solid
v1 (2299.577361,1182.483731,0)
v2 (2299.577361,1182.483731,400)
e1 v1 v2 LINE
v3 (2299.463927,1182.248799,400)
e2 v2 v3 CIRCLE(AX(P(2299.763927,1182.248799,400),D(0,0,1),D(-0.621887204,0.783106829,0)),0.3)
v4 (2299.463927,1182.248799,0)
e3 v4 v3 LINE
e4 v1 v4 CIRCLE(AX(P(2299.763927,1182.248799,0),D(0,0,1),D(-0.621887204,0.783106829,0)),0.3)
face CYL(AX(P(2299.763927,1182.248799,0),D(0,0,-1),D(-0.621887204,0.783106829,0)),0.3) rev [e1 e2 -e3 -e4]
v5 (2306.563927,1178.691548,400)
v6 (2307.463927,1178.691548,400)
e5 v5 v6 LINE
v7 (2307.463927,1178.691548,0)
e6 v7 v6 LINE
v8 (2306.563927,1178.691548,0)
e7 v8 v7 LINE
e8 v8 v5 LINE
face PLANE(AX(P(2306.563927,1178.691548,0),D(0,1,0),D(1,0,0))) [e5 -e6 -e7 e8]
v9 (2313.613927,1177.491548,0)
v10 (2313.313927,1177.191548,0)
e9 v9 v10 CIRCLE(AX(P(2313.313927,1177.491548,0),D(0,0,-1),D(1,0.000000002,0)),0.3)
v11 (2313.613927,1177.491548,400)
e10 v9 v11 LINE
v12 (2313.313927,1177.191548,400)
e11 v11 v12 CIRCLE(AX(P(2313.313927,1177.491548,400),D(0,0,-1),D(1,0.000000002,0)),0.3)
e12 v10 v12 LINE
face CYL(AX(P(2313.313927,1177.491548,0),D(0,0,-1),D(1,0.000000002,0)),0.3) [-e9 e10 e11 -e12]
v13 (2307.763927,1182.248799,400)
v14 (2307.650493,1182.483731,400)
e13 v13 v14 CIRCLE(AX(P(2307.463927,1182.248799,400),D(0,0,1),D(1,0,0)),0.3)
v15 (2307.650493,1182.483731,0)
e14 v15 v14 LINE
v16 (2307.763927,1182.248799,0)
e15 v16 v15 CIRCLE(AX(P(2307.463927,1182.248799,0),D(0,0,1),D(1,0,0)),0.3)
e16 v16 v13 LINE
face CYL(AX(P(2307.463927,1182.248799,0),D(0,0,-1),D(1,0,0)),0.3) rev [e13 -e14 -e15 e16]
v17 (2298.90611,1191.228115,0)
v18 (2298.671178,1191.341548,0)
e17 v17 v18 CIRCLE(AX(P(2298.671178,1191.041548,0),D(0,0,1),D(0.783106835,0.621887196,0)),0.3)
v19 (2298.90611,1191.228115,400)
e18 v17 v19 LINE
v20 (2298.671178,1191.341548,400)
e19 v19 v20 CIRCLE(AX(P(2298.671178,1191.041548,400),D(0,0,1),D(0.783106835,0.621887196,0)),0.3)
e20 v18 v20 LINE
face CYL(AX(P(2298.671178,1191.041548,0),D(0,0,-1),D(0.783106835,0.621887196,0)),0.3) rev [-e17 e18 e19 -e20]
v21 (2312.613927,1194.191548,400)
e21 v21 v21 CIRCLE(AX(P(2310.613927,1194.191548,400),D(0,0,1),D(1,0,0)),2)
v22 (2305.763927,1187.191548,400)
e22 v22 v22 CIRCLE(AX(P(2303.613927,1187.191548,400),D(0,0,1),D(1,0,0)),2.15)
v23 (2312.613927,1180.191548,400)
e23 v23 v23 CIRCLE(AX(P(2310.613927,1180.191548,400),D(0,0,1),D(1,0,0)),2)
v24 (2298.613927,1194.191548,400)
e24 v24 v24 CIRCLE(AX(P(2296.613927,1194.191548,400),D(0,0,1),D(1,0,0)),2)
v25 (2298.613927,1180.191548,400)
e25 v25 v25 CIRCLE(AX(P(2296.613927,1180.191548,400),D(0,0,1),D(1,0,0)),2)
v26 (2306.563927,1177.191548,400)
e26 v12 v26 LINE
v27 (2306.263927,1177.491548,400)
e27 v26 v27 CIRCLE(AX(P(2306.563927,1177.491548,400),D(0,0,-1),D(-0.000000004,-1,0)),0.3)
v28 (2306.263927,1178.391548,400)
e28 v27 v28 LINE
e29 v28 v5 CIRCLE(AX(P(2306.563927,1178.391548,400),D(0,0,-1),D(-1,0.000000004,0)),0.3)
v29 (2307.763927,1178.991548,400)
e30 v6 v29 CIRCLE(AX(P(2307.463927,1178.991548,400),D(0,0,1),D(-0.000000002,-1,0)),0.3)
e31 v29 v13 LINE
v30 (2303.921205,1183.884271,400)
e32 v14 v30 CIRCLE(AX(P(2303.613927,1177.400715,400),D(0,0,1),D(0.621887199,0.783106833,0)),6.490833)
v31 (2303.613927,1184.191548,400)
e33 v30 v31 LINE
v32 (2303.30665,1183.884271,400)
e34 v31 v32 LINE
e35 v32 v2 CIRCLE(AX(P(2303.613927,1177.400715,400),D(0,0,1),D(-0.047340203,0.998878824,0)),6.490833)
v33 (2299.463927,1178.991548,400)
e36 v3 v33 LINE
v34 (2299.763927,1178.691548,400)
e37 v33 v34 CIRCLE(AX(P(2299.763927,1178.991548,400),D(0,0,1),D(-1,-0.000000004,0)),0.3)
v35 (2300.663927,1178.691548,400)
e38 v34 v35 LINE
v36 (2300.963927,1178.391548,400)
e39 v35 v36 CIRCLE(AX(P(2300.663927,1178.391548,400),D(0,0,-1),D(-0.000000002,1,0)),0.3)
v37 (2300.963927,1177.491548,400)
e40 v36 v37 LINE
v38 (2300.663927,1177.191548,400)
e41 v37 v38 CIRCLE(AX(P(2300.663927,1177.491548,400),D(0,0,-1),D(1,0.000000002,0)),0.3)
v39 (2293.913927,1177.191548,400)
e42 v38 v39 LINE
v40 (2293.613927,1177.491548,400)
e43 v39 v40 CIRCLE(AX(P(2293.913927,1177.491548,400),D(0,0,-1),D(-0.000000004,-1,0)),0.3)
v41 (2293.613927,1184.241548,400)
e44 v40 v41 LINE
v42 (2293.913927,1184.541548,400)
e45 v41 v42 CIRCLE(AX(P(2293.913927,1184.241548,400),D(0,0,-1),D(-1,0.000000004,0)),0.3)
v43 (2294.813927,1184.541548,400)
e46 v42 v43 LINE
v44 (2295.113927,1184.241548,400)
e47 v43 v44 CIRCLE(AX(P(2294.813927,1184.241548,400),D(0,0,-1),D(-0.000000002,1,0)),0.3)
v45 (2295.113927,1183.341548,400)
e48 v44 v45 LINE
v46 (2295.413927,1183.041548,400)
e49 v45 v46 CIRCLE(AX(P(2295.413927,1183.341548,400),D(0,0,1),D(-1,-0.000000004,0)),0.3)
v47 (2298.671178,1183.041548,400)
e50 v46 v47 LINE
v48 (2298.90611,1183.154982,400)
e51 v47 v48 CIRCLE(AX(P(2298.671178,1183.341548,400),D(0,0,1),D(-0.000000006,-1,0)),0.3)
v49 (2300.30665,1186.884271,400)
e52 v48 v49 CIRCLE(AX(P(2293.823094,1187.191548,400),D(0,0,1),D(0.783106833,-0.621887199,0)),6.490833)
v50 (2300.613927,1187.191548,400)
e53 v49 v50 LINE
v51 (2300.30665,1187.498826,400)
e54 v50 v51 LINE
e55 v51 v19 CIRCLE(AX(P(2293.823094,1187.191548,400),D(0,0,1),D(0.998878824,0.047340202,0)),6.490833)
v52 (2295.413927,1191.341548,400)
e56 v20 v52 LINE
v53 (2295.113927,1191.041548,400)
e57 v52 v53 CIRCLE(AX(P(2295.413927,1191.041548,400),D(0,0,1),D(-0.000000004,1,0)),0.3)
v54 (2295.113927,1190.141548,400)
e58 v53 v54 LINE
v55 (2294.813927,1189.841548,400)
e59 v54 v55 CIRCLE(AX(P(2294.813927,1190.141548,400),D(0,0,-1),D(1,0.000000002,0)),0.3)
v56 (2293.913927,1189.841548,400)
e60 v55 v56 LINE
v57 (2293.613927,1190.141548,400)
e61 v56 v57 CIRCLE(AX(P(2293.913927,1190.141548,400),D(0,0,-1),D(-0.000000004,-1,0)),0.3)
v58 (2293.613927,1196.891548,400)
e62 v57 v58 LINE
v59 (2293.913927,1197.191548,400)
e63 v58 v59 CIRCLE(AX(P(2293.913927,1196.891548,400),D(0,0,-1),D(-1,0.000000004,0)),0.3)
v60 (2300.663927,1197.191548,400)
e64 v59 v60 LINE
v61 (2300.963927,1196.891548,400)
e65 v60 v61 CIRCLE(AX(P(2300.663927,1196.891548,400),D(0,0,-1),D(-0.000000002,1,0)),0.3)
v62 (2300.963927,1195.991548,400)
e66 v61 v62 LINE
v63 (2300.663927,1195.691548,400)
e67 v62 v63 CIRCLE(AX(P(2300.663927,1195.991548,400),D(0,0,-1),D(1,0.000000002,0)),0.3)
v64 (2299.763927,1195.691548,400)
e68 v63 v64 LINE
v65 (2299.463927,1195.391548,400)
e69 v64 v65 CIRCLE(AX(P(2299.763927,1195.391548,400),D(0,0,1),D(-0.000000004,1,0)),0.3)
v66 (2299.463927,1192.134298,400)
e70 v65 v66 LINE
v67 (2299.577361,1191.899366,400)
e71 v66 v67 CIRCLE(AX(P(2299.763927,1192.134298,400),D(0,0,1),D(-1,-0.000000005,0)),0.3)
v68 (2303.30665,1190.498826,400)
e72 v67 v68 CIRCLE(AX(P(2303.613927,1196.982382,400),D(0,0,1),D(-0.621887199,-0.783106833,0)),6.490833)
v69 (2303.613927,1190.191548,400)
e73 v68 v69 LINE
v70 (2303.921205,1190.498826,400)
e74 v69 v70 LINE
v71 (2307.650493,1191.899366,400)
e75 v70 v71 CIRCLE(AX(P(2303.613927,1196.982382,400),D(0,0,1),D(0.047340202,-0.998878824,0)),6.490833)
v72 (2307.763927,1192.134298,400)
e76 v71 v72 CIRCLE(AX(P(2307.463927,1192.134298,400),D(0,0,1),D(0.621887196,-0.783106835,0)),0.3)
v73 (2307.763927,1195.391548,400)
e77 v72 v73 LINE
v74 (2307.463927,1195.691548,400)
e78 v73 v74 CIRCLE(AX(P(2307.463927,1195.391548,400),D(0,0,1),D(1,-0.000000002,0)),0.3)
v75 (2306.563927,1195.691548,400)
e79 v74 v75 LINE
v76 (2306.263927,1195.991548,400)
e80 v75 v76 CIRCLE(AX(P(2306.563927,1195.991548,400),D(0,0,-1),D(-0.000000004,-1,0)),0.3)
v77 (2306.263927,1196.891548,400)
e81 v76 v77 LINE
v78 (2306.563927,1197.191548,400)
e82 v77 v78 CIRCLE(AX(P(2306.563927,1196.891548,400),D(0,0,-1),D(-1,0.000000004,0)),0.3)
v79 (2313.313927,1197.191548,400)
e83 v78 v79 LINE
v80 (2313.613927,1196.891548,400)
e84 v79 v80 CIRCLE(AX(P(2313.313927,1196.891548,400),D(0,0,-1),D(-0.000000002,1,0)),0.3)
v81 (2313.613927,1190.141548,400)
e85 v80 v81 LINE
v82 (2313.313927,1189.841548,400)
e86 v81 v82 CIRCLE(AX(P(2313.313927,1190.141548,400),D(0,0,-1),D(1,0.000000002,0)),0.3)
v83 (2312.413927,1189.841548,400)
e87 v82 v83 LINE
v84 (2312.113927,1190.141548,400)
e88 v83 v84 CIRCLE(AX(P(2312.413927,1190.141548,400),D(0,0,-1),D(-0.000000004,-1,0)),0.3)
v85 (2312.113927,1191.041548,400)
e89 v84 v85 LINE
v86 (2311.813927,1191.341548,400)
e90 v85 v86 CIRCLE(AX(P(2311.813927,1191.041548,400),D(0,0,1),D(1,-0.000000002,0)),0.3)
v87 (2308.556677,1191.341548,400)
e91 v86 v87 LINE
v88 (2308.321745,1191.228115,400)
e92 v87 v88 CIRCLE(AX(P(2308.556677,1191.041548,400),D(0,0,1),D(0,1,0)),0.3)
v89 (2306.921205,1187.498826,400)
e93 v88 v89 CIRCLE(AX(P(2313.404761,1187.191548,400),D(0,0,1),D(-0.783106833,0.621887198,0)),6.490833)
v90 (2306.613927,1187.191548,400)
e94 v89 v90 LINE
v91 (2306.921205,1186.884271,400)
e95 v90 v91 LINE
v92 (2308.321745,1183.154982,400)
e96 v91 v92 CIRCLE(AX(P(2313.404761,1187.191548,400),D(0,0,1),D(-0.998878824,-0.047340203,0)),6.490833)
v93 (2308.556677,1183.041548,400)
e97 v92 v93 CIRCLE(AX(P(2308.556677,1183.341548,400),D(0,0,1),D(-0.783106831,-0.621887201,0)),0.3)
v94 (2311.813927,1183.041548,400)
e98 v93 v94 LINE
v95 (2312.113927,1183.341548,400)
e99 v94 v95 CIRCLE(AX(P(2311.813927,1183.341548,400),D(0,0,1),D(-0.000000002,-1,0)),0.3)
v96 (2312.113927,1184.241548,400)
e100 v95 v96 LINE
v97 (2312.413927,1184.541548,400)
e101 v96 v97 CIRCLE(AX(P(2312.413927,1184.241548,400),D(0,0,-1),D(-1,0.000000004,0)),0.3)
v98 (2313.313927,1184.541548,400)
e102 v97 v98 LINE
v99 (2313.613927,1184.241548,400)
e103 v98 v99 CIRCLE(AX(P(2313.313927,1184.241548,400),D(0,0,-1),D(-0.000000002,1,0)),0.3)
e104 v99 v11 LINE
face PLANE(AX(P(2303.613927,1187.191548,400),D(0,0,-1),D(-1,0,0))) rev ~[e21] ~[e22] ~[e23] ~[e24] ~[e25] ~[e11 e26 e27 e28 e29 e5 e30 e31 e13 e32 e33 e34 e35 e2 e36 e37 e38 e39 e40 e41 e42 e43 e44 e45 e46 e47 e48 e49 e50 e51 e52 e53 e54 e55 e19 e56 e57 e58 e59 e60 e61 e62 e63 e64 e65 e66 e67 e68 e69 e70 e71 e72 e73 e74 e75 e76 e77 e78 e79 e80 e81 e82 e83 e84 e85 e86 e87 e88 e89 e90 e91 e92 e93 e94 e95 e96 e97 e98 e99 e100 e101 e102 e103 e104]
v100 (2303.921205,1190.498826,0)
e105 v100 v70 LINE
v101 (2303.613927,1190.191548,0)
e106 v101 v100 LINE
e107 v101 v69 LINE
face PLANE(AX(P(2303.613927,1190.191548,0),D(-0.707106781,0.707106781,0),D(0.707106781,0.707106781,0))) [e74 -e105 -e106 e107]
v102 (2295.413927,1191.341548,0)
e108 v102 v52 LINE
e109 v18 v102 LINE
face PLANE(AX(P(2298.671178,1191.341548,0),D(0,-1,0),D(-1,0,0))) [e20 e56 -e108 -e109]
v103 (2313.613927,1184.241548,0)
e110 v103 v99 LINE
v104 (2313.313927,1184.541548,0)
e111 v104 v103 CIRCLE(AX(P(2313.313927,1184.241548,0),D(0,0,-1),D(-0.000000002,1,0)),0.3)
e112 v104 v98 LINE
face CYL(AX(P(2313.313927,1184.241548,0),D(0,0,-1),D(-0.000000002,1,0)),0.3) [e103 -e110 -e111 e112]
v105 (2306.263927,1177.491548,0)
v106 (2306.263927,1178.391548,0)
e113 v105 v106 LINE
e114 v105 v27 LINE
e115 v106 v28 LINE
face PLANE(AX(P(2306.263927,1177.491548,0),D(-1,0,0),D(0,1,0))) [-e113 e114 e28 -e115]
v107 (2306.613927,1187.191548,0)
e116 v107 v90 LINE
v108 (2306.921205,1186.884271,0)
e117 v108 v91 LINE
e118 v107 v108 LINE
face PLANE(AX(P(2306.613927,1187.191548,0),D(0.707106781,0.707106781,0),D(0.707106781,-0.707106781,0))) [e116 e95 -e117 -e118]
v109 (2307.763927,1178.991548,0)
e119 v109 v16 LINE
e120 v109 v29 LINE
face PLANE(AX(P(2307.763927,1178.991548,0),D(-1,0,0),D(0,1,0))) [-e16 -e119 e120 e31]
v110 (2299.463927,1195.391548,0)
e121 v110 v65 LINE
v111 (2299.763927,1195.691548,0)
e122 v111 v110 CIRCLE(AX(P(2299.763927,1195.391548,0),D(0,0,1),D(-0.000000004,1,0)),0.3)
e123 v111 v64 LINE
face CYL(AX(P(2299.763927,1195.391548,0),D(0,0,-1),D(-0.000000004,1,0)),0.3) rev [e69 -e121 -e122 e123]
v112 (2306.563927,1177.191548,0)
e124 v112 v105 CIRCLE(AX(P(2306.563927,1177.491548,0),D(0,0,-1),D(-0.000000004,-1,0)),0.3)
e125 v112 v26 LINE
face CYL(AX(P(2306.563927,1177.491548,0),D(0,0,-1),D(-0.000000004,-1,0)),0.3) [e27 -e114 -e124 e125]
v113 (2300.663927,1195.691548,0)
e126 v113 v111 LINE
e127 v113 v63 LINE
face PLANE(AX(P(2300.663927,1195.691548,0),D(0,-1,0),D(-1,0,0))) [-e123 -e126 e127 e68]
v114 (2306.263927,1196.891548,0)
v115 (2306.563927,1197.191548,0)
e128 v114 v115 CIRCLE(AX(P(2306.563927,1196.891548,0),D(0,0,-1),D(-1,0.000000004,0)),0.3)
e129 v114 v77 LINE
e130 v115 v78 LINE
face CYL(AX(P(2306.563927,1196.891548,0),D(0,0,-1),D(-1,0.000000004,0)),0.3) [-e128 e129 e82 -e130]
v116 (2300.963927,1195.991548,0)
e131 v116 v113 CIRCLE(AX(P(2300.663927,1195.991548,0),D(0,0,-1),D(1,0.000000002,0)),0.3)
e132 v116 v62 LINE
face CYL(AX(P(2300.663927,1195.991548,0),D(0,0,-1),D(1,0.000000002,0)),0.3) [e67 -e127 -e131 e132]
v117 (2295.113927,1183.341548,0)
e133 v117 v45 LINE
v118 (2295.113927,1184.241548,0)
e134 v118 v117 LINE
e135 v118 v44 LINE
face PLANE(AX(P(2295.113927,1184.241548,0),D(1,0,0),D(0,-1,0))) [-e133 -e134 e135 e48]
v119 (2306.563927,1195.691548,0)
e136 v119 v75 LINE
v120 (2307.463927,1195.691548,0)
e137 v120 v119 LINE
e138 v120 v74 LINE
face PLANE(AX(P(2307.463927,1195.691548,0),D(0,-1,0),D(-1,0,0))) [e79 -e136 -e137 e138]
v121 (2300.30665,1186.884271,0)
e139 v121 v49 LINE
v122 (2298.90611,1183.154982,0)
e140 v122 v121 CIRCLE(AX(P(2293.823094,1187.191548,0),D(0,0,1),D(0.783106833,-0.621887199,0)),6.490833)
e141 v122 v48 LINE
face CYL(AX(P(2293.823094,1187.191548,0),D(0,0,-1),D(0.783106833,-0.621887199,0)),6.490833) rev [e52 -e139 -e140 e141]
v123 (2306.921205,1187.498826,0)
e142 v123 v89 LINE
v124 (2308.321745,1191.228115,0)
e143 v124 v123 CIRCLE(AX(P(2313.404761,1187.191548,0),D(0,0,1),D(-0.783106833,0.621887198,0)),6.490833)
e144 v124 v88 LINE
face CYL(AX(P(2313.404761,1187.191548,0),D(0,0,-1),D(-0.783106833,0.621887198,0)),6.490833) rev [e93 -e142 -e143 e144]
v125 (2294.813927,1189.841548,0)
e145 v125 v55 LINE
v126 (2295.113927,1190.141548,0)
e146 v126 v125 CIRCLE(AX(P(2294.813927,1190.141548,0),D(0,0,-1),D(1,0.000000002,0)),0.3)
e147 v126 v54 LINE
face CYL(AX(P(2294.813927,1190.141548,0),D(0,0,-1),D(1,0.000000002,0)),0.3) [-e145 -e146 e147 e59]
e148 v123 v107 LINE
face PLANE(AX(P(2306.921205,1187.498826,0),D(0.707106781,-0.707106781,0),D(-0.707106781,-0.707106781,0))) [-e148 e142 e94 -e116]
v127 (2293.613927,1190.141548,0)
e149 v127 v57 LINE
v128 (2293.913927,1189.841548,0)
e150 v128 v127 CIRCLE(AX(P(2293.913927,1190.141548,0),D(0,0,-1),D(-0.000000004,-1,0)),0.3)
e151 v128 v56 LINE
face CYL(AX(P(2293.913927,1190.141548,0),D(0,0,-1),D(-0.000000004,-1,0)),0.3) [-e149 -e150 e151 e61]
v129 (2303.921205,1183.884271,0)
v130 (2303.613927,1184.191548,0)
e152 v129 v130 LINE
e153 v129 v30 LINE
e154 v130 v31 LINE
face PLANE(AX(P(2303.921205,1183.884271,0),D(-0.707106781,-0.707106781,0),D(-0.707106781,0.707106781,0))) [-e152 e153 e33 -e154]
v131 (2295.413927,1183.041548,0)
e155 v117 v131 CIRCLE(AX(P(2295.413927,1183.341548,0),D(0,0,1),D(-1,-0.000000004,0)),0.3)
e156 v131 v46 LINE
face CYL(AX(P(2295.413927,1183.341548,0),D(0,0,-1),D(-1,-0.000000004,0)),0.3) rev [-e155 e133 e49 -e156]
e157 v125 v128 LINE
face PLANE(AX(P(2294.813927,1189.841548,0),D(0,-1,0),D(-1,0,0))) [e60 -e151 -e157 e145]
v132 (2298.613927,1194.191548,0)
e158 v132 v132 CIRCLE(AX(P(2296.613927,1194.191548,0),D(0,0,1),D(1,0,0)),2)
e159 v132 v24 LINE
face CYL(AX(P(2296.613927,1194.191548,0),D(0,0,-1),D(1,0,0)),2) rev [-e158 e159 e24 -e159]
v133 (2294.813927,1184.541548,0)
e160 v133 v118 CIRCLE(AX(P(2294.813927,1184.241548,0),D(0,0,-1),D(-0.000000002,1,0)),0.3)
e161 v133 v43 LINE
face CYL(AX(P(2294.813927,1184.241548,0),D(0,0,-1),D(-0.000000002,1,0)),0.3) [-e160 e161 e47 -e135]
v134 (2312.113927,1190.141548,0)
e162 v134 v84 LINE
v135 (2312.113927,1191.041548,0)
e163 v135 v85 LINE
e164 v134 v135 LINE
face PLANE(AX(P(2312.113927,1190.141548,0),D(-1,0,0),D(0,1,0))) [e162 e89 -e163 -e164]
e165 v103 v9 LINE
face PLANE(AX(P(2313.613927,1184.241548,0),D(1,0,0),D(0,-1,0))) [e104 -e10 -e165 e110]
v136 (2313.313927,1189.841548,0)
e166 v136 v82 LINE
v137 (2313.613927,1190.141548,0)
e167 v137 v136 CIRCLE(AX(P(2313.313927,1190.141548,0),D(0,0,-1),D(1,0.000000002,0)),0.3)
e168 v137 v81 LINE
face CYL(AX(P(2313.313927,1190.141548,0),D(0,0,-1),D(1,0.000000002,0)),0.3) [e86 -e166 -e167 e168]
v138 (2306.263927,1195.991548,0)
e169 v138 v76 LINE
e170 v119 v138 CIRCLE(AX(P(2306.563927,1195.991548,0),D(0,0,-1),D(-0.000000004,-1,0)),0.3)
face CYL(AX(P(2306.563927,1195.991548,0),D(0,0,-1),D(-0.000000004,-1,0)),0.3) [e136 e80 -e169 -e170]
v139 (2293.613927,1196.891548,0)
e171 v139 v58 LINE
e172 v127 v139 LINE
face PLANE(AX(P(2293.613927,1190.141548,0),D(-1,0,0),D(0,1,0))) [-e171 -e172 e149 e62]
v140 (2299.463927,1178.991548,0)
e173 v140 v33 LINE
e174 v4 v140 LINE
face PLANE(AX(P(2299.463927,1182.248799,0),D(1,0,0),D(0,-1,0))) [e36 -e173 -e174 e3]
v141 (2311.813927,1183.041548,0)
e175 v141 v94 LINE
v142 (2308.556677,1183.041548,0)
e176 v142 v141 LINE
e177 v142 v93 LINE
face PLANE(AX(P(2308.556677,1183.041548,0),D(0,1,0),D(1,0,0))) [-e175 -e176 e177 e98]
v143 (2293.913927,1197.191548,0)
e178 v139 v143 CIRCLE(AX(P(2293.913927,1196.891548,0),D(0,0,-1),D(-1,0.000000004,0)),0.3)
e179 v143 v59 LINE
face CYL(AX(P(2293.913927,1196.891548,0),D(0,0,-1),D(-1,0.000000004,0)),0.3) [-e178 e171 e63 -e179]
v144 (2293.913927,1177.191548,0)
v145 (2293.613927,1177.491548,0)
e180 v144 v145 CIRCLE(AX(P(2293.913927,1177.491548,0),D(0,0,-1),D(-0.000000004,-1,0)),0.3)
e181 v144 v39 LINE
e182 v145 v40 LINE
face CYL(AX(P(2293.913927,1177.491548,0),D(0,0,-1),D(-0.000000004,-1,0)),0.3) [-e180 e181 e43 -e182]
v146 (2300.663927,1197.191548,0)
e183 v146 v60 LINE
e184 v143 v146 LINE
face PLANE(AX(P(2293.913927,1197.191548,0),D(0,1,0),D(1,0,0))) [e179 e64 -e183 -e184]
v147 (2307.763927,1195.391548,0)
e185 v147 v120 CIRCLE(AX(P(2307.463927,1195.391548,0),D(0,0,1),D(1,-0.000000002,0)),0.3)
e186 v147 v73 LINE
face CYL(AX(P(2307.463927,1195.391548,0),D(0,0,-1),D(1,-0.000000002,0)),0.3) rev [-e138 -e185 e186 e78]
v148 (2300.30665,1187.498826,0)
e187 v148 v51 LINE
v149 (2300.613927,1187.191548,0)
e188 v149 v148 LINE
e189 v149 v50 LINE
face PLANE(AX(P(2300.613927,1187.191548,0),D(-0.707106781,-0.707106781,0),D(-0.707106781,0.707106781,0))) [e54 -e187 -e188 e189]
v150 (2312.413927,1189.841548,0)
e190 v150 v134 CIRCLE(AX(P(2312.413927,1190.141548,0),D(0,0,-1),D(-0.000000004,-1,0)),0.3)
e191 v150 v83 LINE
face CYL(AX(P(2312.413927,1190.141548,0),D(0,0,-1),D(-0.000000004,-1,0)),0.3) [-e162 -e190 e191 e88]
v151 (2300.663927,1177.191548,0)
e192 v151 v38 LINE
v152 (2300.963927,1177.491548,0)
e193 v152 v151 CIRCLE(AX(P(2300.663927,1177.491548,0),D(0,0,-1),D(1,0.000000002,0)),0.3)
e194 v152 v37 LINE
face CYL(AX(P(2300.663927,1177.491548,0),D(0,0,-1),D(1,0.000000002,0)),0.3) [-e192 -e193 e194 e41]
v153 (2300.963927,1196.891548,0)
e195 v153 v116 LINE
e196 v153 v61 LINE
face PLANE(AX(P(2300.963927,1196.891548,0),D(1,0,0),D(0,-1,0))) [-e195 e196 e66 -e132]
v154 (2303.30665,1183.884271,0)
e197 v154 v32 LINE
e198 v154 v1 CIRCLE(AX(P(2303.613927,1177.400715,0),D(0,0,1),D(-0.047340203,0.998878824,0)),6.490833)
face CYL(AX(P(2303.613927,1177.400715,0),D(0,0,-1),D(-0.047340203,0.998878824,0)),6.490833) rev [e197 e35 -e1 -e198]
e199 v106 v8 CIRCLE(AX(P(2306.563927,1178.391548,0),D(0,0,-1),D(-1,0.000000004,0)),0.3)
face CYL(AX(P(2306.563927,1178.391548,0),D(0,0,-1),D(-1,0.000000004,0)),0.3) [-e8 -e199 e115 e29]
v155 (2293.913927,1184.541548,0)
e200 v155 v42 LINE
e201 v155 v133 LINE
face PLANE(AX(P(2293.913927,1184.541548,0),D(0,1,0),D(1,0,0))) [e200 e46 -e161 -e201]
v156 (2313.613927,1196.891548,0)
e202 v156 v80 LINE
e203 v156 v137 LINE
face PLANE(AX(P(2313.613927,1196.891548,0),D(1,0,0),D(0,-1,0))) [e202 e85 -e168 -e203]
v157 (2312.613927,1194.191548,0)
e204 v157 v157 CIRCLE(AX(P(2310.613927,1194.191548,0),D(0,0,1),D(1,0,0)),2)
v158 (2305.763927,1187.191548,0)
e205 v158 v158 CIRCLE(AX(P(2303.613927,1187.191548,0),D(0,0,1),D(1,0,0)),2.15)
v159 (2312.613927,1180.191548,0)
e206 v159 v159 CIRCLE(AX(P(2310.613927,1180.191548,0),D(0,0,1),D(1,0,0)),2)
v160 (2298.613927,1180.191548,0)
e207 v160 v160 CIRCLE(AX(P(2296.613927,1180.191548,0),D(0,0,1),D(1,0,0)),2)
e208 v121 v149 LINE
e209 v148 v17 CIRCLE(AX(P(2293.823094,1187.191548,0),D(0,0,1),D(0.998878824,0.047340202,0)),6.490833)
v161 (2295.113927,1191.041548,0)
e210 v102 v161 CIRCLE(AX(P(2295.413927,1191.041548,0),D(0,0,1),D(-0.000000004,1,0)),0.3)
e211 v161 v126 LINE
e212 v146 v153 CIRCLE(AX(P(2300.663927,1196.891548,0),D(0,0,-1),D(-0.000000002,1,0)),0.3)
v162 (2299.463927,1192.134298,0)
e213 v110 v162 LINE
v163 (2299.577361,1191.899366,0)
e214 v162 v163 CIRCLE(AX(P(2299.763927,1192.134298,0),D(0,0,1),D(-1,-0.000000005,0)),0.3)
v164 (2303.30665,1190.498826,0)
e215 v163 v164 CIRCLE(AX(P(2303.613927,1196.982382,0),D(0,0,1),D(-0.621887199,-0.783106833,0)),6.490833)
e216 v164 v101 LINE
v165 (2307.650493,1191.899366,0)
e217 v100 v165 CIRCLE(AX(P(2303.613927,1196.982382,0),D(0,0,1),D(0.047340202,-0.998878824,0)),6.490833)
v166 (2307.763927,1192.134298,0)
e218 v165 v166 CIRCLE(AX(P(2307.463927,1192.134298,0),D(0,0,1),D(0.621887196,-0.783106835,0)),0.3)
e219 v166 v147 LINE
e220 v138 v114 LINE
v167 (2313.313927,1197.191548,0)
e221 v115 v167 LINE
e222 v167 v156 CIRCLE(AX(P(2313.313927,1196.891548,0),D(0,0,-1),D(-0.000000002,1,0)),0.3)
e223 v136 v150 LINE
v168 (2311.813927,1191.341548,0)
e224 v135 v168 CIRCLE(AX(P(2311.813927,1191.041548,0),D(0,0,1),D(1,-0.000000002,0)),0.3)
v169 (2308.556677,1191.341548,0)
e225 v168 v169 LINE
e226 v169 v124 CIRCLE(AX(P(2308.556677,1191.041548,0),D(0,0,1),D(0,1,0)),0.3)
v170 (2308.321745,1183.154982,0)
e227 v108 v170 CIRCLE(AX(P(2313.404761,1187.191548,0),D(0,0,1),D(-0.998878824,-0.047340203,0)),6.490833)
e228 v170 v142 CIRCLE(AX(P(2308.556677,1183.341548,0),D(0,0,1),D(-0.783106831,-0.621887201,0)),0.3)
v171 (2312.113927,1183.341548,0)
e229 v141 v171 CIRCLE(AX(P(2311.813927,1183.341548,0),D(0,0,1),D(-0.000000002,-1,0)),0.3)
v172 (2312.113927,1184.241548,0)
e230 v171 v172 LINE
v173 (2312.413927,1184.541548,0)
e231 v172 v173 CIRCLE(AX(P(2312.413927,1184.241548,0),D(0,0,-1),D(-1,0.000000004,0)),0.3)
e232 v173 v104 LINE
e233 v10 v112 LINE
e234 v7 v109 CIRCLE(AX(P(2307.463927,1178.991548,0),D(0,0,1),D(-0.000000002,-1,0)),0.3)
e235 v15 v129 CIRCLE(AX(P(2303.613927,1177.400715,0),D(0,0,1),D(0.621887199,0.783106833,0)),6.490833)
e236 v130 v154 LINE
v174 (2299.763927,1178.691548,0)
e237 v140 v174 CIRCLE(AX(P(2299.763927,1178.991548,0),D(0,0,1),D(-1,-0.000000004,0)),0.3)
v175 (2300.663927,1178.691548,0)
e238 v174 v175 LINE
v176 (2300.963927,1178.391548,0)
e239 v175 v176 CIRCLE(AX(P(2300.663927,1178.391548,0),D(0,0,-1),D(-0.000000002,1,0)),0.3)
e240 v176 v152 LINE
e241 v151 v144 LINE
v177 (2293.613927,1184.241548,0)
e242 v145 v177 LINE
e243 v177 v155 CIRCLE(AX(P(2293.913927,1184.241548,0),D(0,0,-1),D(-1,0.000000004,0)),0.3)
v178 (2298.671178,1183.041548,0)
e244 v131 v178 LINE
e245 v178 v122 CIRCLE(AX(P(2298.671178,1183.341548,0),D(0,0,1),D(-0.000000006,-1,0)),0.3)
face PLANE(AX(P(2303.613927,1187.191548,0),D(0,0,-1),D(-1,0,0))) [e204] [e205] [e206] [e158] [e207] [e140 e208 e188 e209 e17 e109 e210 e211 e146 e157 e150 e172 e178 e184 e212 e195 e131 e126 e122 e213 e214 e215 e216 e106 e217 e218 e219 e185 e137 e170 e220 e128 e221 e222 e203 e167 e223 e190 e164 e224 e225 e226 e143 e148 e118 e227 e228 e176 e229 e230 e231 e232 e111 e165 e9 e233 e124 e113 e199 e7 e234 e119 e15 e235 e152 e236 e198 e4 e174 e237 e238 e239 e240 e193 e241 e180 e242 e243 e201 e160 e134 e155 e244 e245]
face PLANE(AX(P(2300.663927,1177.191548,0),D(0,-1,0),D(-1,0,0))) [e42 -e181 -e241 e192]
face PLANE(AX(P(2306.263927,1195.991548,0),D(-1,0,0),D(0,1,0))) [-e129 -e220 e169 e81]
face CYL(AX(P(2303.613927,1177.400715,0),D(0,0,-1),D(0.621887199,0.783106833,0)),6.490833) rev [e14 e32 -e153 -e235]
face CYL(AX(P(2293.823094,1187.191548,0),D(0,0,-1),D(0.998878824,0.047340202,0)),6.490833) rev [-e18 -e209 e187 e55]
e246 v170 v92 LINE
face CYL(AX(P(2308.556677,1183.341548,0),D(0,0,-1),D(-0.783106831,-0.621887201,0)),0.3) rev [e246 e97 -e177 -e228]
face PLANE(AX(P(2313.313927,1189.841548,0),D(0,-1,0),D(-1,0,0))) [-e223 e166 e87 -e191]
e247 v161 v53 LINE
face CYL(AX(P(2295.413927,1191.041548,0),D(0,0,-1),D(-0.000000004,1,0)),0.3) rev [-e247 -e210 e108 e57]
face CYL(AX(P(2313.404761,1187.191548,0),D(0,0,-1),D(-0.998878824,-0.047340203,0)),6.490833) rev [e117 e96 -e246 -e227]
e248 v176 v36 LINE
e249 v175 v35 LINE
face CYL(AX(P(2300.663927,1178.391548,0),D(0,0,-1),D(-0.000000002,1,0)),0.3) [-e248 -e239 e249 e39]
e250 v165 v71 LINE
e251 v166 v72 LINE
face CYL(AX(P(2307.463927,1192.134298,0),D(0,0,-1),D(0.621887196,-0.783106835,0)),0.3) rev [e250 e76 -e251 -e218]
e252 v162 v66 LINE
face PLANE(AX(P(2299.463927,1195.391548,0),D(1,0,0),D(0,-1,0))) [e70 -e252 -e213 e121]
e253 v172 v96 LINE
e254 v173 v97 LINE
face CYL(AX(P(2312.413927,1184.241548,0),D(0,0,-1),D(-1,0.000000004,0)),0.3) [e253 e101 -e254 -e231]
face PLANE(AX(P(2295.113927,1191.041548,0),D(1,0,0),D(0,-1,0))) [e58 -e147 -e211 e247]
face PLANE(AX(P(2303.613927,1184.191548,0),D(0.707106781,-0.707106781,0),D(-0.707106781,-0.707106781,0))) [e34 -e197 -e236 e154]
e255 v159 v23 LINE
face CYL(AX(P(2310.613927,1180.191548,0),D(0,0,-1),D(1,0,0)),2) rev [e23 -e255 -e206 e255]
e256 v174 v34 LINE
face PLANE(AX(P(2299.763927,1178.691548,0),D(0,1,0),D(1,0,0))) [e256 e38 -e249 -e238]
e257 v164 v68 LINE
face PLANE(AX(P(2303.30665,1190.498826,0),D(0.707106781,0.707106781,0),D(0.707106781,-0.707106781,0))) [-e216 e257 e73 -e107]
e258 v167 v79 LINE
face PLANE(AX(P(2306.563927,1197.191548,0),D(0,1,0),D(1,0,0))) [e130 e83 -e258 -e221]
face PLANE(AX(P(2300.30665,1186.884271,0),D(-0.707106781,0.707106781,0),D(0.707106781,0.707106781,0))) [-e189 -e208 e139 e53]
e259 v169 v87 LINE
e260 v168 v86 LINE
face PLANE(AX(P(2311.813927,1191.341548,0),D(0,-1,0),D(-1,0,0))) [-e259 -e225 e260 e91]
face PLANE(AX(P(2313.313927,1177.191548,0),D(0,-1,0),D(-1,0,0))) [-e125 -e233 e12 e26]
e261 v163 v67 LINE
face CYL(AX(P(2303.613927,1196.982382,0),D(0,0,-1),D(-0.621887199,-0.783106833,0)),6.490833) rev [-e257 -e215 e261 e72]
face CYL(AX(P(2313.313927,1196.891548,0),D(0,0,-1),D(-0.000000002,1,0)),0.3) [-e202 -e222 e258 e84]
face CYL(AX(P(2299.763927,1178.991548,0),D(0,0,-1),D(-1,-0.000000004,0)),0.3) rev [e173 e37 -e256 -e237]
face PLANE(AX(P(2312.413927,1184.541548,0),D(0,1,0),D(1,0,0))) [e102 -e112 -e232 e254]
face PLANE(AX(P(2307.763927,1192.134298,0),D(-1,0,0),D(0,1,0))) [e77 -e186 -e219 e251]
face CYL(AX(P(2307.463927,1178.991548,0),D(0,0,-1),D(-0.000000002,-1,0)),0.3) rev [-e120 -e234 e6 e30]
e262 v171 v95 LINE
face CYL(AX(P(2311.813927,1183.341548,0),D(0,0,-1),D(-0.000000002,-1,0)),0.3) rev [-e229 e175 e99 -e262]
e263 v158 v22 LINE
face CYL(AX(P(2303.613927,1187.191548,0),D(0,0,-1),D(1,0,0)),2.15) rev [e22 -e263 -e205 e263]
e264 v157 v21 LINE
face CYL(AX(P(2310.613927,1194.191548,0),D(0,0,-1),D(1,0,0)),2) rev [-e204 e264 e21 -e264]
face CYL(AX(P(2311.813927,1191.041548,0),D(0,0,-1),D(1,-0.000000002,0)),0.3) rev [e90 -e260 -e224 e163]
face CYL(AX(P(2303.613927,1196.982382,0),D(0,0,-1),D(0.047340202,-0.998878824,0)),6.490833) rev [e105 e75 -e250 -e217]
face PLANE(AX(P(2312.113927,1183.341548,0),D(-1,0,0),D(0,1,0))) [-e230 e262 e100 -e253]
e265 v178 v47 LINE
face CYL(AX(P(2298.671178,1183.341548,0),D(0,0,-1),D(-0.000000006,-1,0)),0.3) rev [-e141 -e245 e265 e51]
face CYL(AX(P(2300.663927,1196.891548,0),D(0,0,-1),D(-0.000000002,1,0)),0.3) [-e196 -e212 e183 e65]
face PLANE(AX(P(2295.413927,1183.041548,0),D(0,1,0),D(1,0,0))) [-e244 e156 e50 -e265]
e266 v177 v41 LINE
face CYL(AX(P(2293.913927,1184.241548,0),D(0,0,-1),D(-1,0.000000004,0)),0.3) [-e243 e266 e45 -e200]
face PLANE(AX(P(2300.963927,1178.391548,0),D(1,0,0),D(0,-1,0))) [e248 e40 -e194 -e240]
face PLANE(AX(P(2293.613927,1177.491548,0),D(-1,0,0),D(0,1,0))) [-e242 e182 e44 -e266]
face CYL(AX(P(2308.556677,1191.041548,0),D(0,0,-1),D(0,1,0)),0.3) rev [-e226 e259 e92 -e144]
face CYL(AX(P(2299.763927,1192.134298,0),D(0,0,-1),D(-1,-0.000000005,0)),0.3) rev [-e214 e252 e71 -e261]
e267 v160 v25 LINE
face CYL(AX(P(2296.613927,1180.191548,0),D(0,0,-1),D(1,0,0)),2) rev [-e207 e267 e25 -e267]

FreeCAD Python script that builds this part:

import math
import FreeCAD as App
import Part
import Sketcher

V = App.Vector
Q = App.Units.Quantity

doc = App.newDocument("Part")
body = doc.addObject("PartDesign::Body", "Body")

sketch1 = body.newObject("Sketcher::SketchObject", "Sketch")
sketch1.AttachmentSupport = (doc.getObject("XY_Plane"), [""])
sketch1.MapMode = "FlatFace"
sketch1.addGeometry([
    Part.LineSegment(V(2307.76, 1195.39, 0), V(2307.76, 1192.13, 0)),
    Part.ArcOfCircle(Part.Circle(V(2307.46, 1192.13, 0), V(0, 0, 1), 0.3), math.radians(-52), math.radians(0)),
    Part.ArcOfCircle(Part.Circle(V(2303.61, 1196.98, 0), V(0, 0, 1), 6.49), math.radians(-87), math.radians(-52)),
    Part.LineSegment(V(2303.92, 1190.5, 0), V(2303.61, 1190.19, 0)),
    Part.LineSegment(V(2303.61, 1190.19, 0), V(2303.31, 1190.5, 0)),
    Part.ArcOfCircle(Part.Circle(V(2303.61, 1196.98, 0), V(0, 0, 1), 6.49), math.radians(-128), math.radians(-93)),
    Part.ArcOfCircle(Part.Circle(V(2299.76, 1192.13, 0), V(0, 0, 1), 0.3), math.radians(-180), math.radians(-128)),
    Part.LineSegment(V(2299.46, 1192.13, 0), V(2299.46, 1195.39, 0)),
    Part.ArcOfCircle(Part.Circle(V(2299.76, 1195.39, 0), V(0, 0, 1), 0.3), math.radians(90), math.radians(180)),
    Part.LineSegment(V(2299.76, 1195.69, 0), V(2300.66, 1195.69, 0)),
    Part.ArcOfCircle(Part.Circle(V(2300.66, 1195.99, 0), V(0, 0, 1), 0.3), math.radians(-90), math.radians(0)),
    Part.LineSegment(V(2300.96, 1195.99, 0), V(2300.96, 1196.89, 0)),
    Part.ArcOfCircle(Part.Circle(V(2300.66, 1196.89, 0), V(0, 0, 1), 0.3), math.radians(0), math.radians(90)),
    Part.LineSegment(V(2300.66, 1197.19, 0), V(2293.91, 1197.19, 0)),
    Part.ArcOfCircle(Part.Circle(V(2293.91, 1196.89, 0), V(0, 0, 1), 0.3), math.radians(90), math.radians(180)),
    Part.LineSegment(V(2293.61, 1196.89, 0), V(2293.61, 1190.14, 0)),
    Part.ArcOfCircle(Part.Circle(V(2293.91, 1190.14, 0), V(0, 0, 1), 0.3), math.radians(-180), math.radians(-90)),
    Part.LineSegment(V(2293.91, 1189.84, 0), V(2294.81, 1189.84, 0)),
    Part.ArcOfCircle(Part.Circle(V(2294.81, 1190.14, 0), V(0, 0, 1), 0.3), math.radians(-90), math.radians(0)),
    Part.LineSegment(V(2295.11, 1190.14, 0), V(2295.11, 1191.04, 0)),
    Part.ArcOfCircle(Part.Circle(V(2295.41, 1191.04, 0), V(0, 0, 1), 0.3), math.radians(90), math.radians(180)),
    Part.LineSegment(V(2295.41, 1191.34, 0), V(2298.67, 1191.34, 0)),
    Part.ArcOfCircle(Part.Circle(V(2298.67, 1191.04, 0), V(0, 0, 1), 0.3), math.radians(38), math.radians(90)),
    Part.ArcOfCircle(Part.Circle(V(2293.82, 1187.19, 0), V(0, 0, 1), 6.49), math.radians(3), math.radians(38)),
    Part.LineSegment(V(2300.31, 1187.5, 0), V(2300.61, 1187.19, 0)),
    Part.LineSegment(V(2300.61, 1187.19, 0), V(2300.31, 1186.88, 0)),
    Part.ArcOfCircle(Part.Circle(V(2293.82, 1187.19, 0), V(0, 0, 1), 6.49), math.radians(-38), math.radians(-3)),
    Part.ArcOfCircle(Part.Circle(V(2298.67, 1183.34, 0), V(0, 0, 1), 0.3), math.radians(-90), math.radians(-38)),
    Part.LineSegment(V(2298.67, 1183.04, 0), V(2295.41, 1183.04, 0)),
    Part.ArcOfCircle(Part.Circle(V(2295.41, 1183.34, 0), V(0, 0, 1), 0.3), math.radians(-180), math.radians(-90)),
    Part.LineSegment(V(2295.11, 1183.34, 0), V(2295.11, 1184.24, 0)),
    Part.ArcOfCircle(Part.Circle(V(2294.81, 1184.24, 0), V(0, 0, 1), 0.3), math.radians(0), math.radians(90)),
    Part.LineSegment(V(2294.81, 1184.54, 0), V(2293.91, 1184.54, 0)),
    Part.ArcOfCircle(Part.Circle(V(2293.91, 1184.24, 0), V(0, 0, 1), 0.3), math.radians(90), math.radians(180)),
    Part.LineSegment(V(2293.61, 1184.24, 0), V(2293.61, 1177.49, 0)),
    Part.ArcOfCircle(Part.Circle(V(2293.91, 1177.49, 0), V(0, 0, 1), 0.3), math.radians(-180), math.radians(-90)),
    Part.LineSegment(V(2293.91, 1177.19, 0), V(2300.66, 1177.19, 0)),
    Part.ArcOfCircle(Part.Circle(V(2300.66, 1177.49, 0), V(0, 0, 1), 0.3), math.radians(-90), math.radians(0)),
    Part.LineSegment(V(2300.96, 1177.49, 0), V(2300.96, 1178.39, 0)),
    Part.ArcOfCircle(Part.Circle(V(2300.66, 1178.39, 0), V(0, 0, 1), 0.3), math.radians(0), math.radians(90)),
    Part.LineSegment(V(2300.66, 1178.69, 0), V(2299.76, 1178.69, 0)),
    Part.ArcOfCircle(Part.Circle(V(2299.76, 1178.99, 0), V(0, 0, 1), 0.3), math.radians(-180), math.radians(-90)),
    Part.LineSegment(V(2299.46, 1178.99, 0), V(2299.46, 1182.25, 0)),
    Part.ArcOfCircle(Part.Circle(V(2299.76, 1182.25, 0), V(0, 0, 1), 0.3), math.radians(128), math.radians(180)),
    Part.ArcOfCircle(Part.Circle(V(2303.61, 1177.4, 0), V(0, 0, 1), 6.49), math.radians(93), math.radians(128)),
    Part.LineSegment(V(2303.31, 1183.88, 0), V(2303.61, 1184.19, 0)),
    Part.LineSegment(V(2303.61, 1184.19, 0), V(2303.92, 1183.88, 0)),
    Part.ArcOfCircle(Part.Circle(V(2303.61, 1177.4, 0), V(0, 0, 1), 6.49), math.radians(52), math.radians(87)),
    Part.ArcOfCircle(Part.Circle(V(2307.46, 1182.25, 0), V(0, 0, 1), 0.3), math.radians(0), math.radians(52)),
    Part.LineSegment(V(2307.76, 1182.25, 0), V(2307.76, 1178.99, 0)),
    Part.ArcOfCircle(Part.Circle(V(2307.46, 1178.99, 0), V(0, 0, 1), 0.3), math.radians(-90), math.radians(0)),
    Part.LineSegment(V(2307.46, 1178.69, 0), V(2306.56, 1178.69, 0)),
    Part.ArcOfCircle(Part.Circle(V(2306.56, 1178.39, 0), V(0, 0, 1), 0.3), math.radians(90), math.radians(180)),
    Part.LineSegment(V(2306.26, 1178.39, 0), V(2306.26, 1177.49, 0)),
    Part.ArcOfCircle(Part.Circle(V(2306.56, 1177.49, 0), V(0, 0, 1), 0.3), math.radians(-180), math.radians(-90)),
    Part.LineSegment(V(2306.56, 1177.19, 0), V(2313.31, 1177.19, 0)),
    Part.ArcOfCircle(Part.Circle(V(2313.31, 1177.49, 0), V(0, 0, 1), 0.3), math.radians(-90), math.radians(0)),
    Part.LineSegment(V(2313.61, 1177.49, 0), V(2313.61, 1184.24, 0)),
    Part.ArcOfCircle(Part.Circle(V(2313.31, 1184.24, 0), V(0, 0, 1), 0.3), math.radians(0), math.radians(90)),
    Part.LineSegment(V(2313.31, 1184.54, 0), V(2312.41, 1184.54, 0)),
    Part.ArcOfCircle(Part.Circle(V(2312.41, 1184.24, 0), V(0, 0, 1), 0.3), math.radians(90), math.radians(180)),
    Part.LineSegment(V(2312.11, 1184.24, 0), V(2312.11, 1183.34, 0)),
    Part.ArcOfCircle(Part.Circle(V(2311.81, 1183.34, 0), V(0, 0, 1), 0.3), math.radians(-90), math.radians(0)),
    Part.LineSegment(V(2311.81, 1183.04, 0), V(2308.56, 1183.04, 0)),
    Part.ArcOfCircle(Part.Circle(V(2308.56, 1183.34, 0), V(0, 0, 1), 0.3), math.radians(-142), math.radians(-90)),
    Part.ArcOfCircle(Part.Circle(V(2313.4, 1187.19, 0), V(0, 0, 1), 6.49), math.radians(-177), math.radians(-142)),
    Part.LineSegment(V(2306.92, 1186.88, 0), V(2306.61, 1187.19, 0)),
    Part.LineSegment(V(2306.61, 1187.19, 0), V(2306.92, 1187.5, 0)),
    Part.ArcOfCircle(Part.Circle(V(2313.4, 1187.19, 0), V(0, 0, 1), 6.49), math.radians(142), math.radians(177)),
    Part.ArcOfCircle(Part.Circle(V(2308.56, 1191.04, 0), V(0, 0, 1), 0.3), math.radians(90), math.radians(142)),
    Part.LineSegment(V(2308.56, 1191.34, 0), V(2311.81, 1191.34, 0)),
    Part.ArcOfCircle(Part.Circle(V(2311.81, 1191.04, 0), V(0, 0, 1), 0.3), math.radians(0), math.radians(90)),
    Part.LineSegment(V(2312.11, 1191.04, 0), V(2312.11, 1190.14, 0)),
    Part.ArcOfCircle(Part.Circle(V(2312.41, 1190.14, 0), V(0, 0, 1), 0.3), math.radians(-180), math.radians(-90)),
    Part.LineSegment(V(2312.41, 1189.84, 0), V(2313.31, 1189.84, 0)),
    Part.ArcOfCircle(Part.Circle(V(2313.31, 1190.14, 0), V(0, 0, 1), 0.3), math.radians(-90), math.radians(0)),
    Part.LineSegment(V(2313.61, 1190.14, 0), V(2313.61, 1196.89, 0)),
    Part.ArcOfCircle(Part.Circle(V(2313.31, 1196.89, 0), V(0, 0, 1), 0.3), math.radians(0), math.radians(90)),
    Part.LineSegment(V(2313.31, 1197.19, 0), V(2306.56, 1197.19, 0)),
    Part.ArcOfCircle(Part.Circle(V(2306.56, 1196.89, 0), V(0, 0, 1), 0.3), math.radians(90), math.radians(180)),
    Part.LineSegment(V(2306.26, 1196.89, 0), V(2306.26, 1195.99, 0)),
    Part.ArcOfCircle(Part.Circle(V(2306.56, 1195.99, 0), V(0, 0, 1), 0.3), math.radians(-180), math.radians(-90)),
    Part.LineSegment(V(2306.56, 1195.69, 0), V(2307.46, 1195.69, 0)),
    Part.ArcOfCircle(Part.Circle(V(2307.46, 1195.39, 0), V(0, 0, 1), 0.3), math.radians(0), math.radians(90)),
    Part.Circle(V(2310.61, 1180.19, 0), V(0, 0, 1), 2),
    Part.Circle(V(2296.61, 1180.19, 0), V(0, 0, 1), 2),
    Part.Circle(V(2310.61, 1194.19, 0), V(0, 0, 1), 2),
    Part.Circle(V(2303.61, 1187.19, 0), V(0, 0, 1), 2.15),
    Part.Circle(V(2296.61, 1194.19, 0), V(0, 0, 1), 2),
], False)
sketch1.addConstraint([
    Sketcher.Constraint("Tangent", 0, 2, 1, 2),
    Sketcher.Constraint("Tangent", 1, 1, 2, 2),
    Sketcher.Constraint("Coincident", 2, 1, 3, 1),
    Sketcher.Constraint("Coincident", 3, 2, 4, 1),
    Sketcher.Constraint("Coincident", 4, 2, 5, 2),
    Sketcher.Constraint("Tangent", 5, 1, 6, 2),
    Sketcher.Constraint("Tangent", 6, 1, 7, 1),
    Sketcher.Constraint("Tangent", 7, 2, 8, 2),
    Sketcher.Constraint("Tangent", 8, 1, 9, 1),
    Sketcher.Constraint("Tangent", 9, 2, 10, 1),
    Sketcher.Constraint("Tangent", 10, 2, 11, 1),
    Sketcher.Constraint("Tangent", 11, 2, 12, 1),
    Sketcher.Constraint("Tangent", 12, 2, 13, 1),
    Sketcher.Constraint("Tangent", 13, 2, 14, 1),
    Sketcher.Constraint("Tangent", 14, 2, 15, 1),
    Sketcher.Constraint("Tangent", 15, 2, 16, 1),
    Sketcher.Constraint("Tangent", 16, 2, 17, 1),
    Sketcher.Constraint("Tangent", 17, 2, 18, 1),
    Sketcher.Constraint("Tangent", 18, 2, 19, 1),
    Sketcher.Constraint("Tangent", 19, 2, 20, 2),
    Sketcher.Constraint("Tangent", 20, 1, 21, 1),
    Sketcher.Constraint("Tangent", 21, 2, 22, 2),
    Sketcher.Constraint("Tangent", 22, 1, 23, 2),
    Sketcher.Constraint("Coincident", 23, 1, 24, 1),
    Sketcher.Constraint("Coincident", 24, 2, 25, 1),
    Sketcher.Constraint("Coincident", 25, 2, 26, 2),
    Sketcher.Constraint("Tangent", 26, 1, 27, 2),
    Sketcher.Constraint("Tangent", 27, 1, 28, 1),
    Sketcher.Constraint("Tangent", 28, 2, 29, 2),
    Sketcher.Constraint("Tangent", 29, 1, 30, 1),
    Sketcher.Constraint("Tangent", 30, 2, 31, 1),
    Sketcher.Constraint("Tangent", 31, 2, 32, 1),
    Sketcher.Constraint("Tangent", 32, 2, 33, 1),
    Sketcher.Constraint("Tangent", 33, 2, 34, 1),
    Sketcher.Constraint("Tangent", 34, 2, 35, 1),
    Sketcher.Constraint("Tangent", 35, 2, 36, 1),
    Sketcher.Constraint("Tangent", 36, 2, 37, 1),
    Sketcher.Constraint("Tangent", 37, 2, 38, 1),
    Sketcher.Constraint("Tangent", 38, 2, 39, 1),
    Sketcher.Constraint("Tangent", 39, 2, 40, 1),
    Sketcher.Constraint("Tangent", 40, 2, 41, 2),
    Sketcher.Constraint("Tangent", 41, 1, 42, 1),
    Sketcher.Constraint("Tangent", 42, 2, 43, 2),
    Sketcher.Constraint("Tangent", 43, 1, 44, 2),
    Sketcher.Constraint("Coincident", 44, 1, 45, 1),
    Sketcher.Constraint("Coincident", 45, 2, 46, 1),
    Sketcher.Constraint("Coincident", 46, 2, 47, 2),
    Sketcher.Constraint("Tangent", 47, 1, 48, 2),
    Sketcher.Constraint("Tangent", 48, 1, 49, 1),
    Sketcher.Constraint("Tangent", 49, 2, 50, 2),
    Sketcher.Constraint("Tangent", 50, 1, 51, 1),
    Sketcher.Constraint("Tangent", 51, 2, 52, 1),
    Sketcher.Constraint("Tangent", 52, 2, 53, 1),
    Sketcher.Constraint("Tangent", 53, 2, 54, 1),
    Sketcher.Constraint("Tangent", 54, 2, 55, 1),
    Sketcher.Constraint("Tangent", 55, 2, 56, 1),
    Sketcher.Constraint("Tangent", 56, 2, 57, 1),
    Sketcher.Constraint("Tangent", 57, 2, 58, 1),
    Sketcher.Constraint("Tangent", 58, 2, 59, 1),
    Sketcher.Constraint("Tangent", 59, 2, 60, 1),
    Sketcher.Constraint("Tangent", 60, 2, 61, 1),
    Sketcher.Constraint("Tangent", 61, 2, 62, 2),
    Sketcher.Constraint("Tangent", 62, 1, 63, 1),
    Sketcher.Constraint("Tangent", 63, 2, 64, 2),
    Sketcher.Constraint("Tangent", 64, 1, 65, 2),
    Sketcher.Constraint("Coincident", 65, 1, 66, 1),
    Sketcher.Constraint("Coincident", 66, 2, 67, 1),
    Sketcher.Constraint("Coincident", 67, 2, 68, 2),
    Sketcher.Constraint("Tangent", 68, 1, 69, 2),
    Sketcher.Constraint("Tangent", 69, 1, 70, 1),
    Sketcher.Constraint("Tangent", 70, 2, 71, 2),
    Sketcher.Constraint("Tangent", 71, 1, 72, 1),
    Sketcher.Constraint("Tangent", 72, 2, 73, 1),
    Sketcher.Constraint("Tangent", 73, 2, 74, 1),
    Sketcher.Constraint("Tangent", 74, 2, 75, 1),
    Sketcher.Constraint("Tangent", 75, 2, 76, 1),
    Sketcher.Constraint("Tangent", 76, 2, 77, 1),
    Sketcher.Constraint("Tangent", 77, 2, 78, 1),
    Sketcher.Constraint("Tangent", 78, 2, 79, 1),
    Sketcher.Constraint("Tangent", 79, 2, 80, 1),
    Sketcher.Constraint("Tangent", 80, 2, 81, 1),
    Sketcher.Constraint("Tangent", 81, 2, 82, 1),
    Sketcher.Constraint("Tangent", 82, 2, 83, 2),
    Sketcher.Constraint("Tangent", 83, 1, 0, 1),
    Sketcher.Constraint("Vertical", 0),
    Sketcher.Constraint("Vertical", 7),
    Sketcher.Constraint("Horizontal", 9),
    Sketcher.Constraint("Vertical", 11),
    Sketcher.Constraint("Horizontal", 13),
    Sketcher.Constraint("Vertical", 15),
    Sketcher.Constraint("Horizontal", 17),
    Sketcher.Constraint("Vertical", 19),
    Sketcher.Constraint("Horizontal", 21),
    Sketcher.Constraint("Horizontal", 28),
    Sketcher.Constraint("Vertical", 30),
    Sketcher.Constraint("Horizontal", 32),
    Sketcher.Constraint("Vertical", 34),
    Sketcher.Constraint("Horizontal", 36),
    Sketcher.Constraint("Vertical", 38),
    Sketcher.Constraint("Horizontal", 40),
    Sketcher.Constraint("Vertical", 42),
    Sketcher.Constraint("Vertical", 49),
    Sketcher.Constraint("Horizontal", 51),
    Sketcher.Constraint("Vertical", 53),
    Sketcher.Constraint("Horizontal", 55),
    Sketcher.Constraint("Vertical", 57),
    Sketcher.Constraint("Horizontal", 59),
    Sketcher.Constraint("Vertical", 61),
    Sketcher.Constraint("Horizontal", 63),
    Sketcher.Constraint("Horizontal", 70),
    Sketcher.Constraint("Vertical", 72),
    Sketcher.Constraint("Horizontal", 74),
    Sketcher.Constraint("Vertical", 76),
    Sketcher.Constraint("Horizontal", 78),
    Sketcher.Constraint("Vertical", 80),
    Sketcher.Constraint("Horizontal", 82),
    Sketcher.Constraint("Coincident", 5, 3, 2, 3),
    Sketcher.Constraint("Coincident", 26, 3, 23, 3),
    Sketcher.Constraint("Coincident", 47, 3, 44, 3),
    Sketcher.Constraint("Coincident", 68, 3, 65, 3),
    Sketcher.Constraint("Equal", 2, 5),
    Sketcher.Constraint("Equal", 1, 6),
    Sketcher.Constraint("Equal", 6, 8),
    Sketcher.Constraint("Equal", 8, 10),
    Sketcher.Constraint("Equal", 10, 12),
    Sketcher.Constraint("Equal", 12, 14),
    Sketcher.Constraint("Equal", 14, 16),
    Sketcher.Constraint("Equal", 16, 18),
    Sketcher.Constraint("Equal", 18, 20),
    Sketcher.Constraint("Equal", 20, 22),
    Sketcher.Constraint("Equal", 5, 23),
    Sketcher.Constraint("Equal", 23, 26),
    Sketcher.Constraint("Equal", 22, 27),
    Sketcher.Constraint("Equal", 27, 29),
    Sketcher.Constraint("Equal", 29, 31),
    Sketcher.Constraint("Equal", 31, 33),
    Sketcher.Constraint("Equal", 33, 35),
    Sketcher.Constraint("Equal", 35, 37),
    Sketcher.Constraint("Equal", 37, 39),
    Sketcher.Constraint("Equal", 39, 41),
    Sketcher.Constraint("Equal", 41, 43),
    Sketcher.Constraint("Equal", 26, 44),
    Sketcher.Constraint("Equal", 44, 47),
    Sketcher.Constraint("Equal", 43, 48),
    Sketcher.Constraint("Equal", 48, 50),
    Sketcher.Constraint("Equal", 50, 52),
    Sketcher.Constraint("Equal", 52, 54),
    Sketcher.Constraint("Equal", 54, 56),
    Sketcher.Constraint("Equal", 56, 58),
    Sketcher.Constraint("Equal", 58, 60),
    Sketcher.Constraint("Equal", 60, 62),
    Sketcher.Constraint("Equal", 62, 64),
    Sketcher.Constraint("Equal", 47, 65),
    Sketcher.Constraint("Equal", 65, 68),
    Sketcher.Constraint("Equal", 64, 69),
    Sketcher.Constraint("Equal", 69, 71),
    Sketcher.Constraint("Equal", 71, 73),
    Sketcher.Constraint("Equal", 73, 75),
    Sketcher.Constraint("Equal", 75, 77),
    Sketcher.Constraint("Equal", 77, 79),
    Sketcher.Constraint("Equal", 79, 81),
    Sketcher.Constraint("Equal", 81, 83),
    Sketcher.Constraint("Equal", 84, 85),
    Sketcher.Constraint("Equal", 85, 86),
    Sketcher.Constraint("Equal", 86, 88),
    Sketcher.Constraint("Perpendicular", 3, 4),
    Sketcher.Constraint("Parallel", 4, 24),
    Sketcher.Constraint("Perpendicular", 24, 25),
    Sketcher.Constraint("Parallel", 25, 45),
    Sketcher.Constraint("Perpendicular", 45, 46),
    Sketcher.Constraint("Parallel", 46, 66),
    Sketcher.Constraint("Perpendicular", 66, 67),
    Sketcher.Constraint("Horizontal", 1, 3, 6, 3),
    Sketcher.Constraint("Horizontal", 43, 3, 48, 3),
    Sketcher.Constraint("Horizontal", 41, 3, 50, 3),
    Sketcher.Constraint("Horizontal", 37, 3, 54, 3),
    Sketcher.Constraint("Horizontal", 33, 3, 58, 3),
    Sketcher.Constraint("Horizontal", 29, 3, 62, 3),
    Sketcher.Constraint("Horizontal", 26, 3, 65, 3),
    Sketcher.Constraint("Horizontal", 22, 3, 69, 3),
    Sketcher.Constraint("Horizontal", 18, 3, 73, 3),
    Sketcher.Constraint("Horizontal", 14, 3, 77, 3),
    Sketcher.Constraint("Horizontal", 10, 3, 81, 3),
    Sketcher.Constraint("Horizontal", 84, 3, 85, 3),
    Sketcher.Constraint("Horizontal", 68, 3, 87, 3),
    Sketcher.Constraint("Horizontal", 86, 3, 88, 3),
    Sketcher.Constraint("Horizontal", 2, 1, 4, 2),
    Sketcher.Constraint("Horizontal", 87, 3, 24, 2),
    Sketcher.Constraint("Horizontal", 44, 1, 46, 2),
    Sketcher.Constraint("Horizontal", 25, 2, 65, 1),
    Sketcher.Constraint("Horizontal", 24, 2, 66, 2),
    Sketcher.Constraint("Horizontal", 23, 1, 67, 2),
    Sketcher.Constraint("Vertical", 22, 3, 27, 3),
    Sketcher.Constraint("Vertical", 20, 3, 29, 3),
    Sketcher.Constraint("Vertical", 16, 3, 33, 3),
    Sketcher.Constraint("Vertical", 12, 3, 37, 3),
    Sketcher.Constraint("Vertical", 8, 3, 41, 3),
    Sketcher.Constraint("Vertical", 5, 3, 44, 3),
    Sketcher.Constraint("Vertical", 62, 3, 71, 3),
    Sketcher.Constraint("Vertical", 58, 3, 75, 3),
    Sketcher.Constraint("Vertical", 54, 3, 79, 3),
    Sketcher.Constraint("Vertical", 84, 3, 86, 3),
    Sketcher.Constraint("Vertical", 47, 3, 87, 3),
    Sketcher.Constraint("Vertical", 85, 3, 88, 3),
    Sketcher.Constraint("Vertical", 4, 2, 44, 1),
    Sketcher.Constraint("Equal", 9, 17),
    Sketcher.Constraint("Equal", 40, 51),
    Sketcher.Constraint("Equal", 36, 55),
    Sketcher.Constraint("Equal", 51, 59),
    Sketcher.Constraint("Equal", 28, 63),
    Sketcher.Constraint("Equal", 70, 0),
    Sketcher.Constraint("Equal", 82, 11),
    Sketcher.Constraint("Equal", 78, 15),
    Sketcher.Constraint("Equal", 11, 19),
    Sketcher.Constraint("Equal", 19, 30),
    Sketcher.Constraint("Equal", 15, 34),
    Sketcher.Constraint("Equal", 30, 38),
    Sketcher.Constraint("Equal", 7, 42),
    Sketcher.Constraint("Equal", 4, 24),
    Sketcher.Constraint("Diameter", 84, Q("4 mm")),
    Sketcher.Constraint("Diameter", 87, Q("4.3 mm")),
    Sketcher.Constraint("Radius", 1, Q("0.3 mm")),
    Sketcher.Constraint("DistanceX", 9, 1, 9, 2, Q("0.9 mm")),
    Sketcher.Constraint("DistanceX", 13, 2, 13, 1, Q("6.75 mm")),
    Sketcher.Constraint("Radius", 2, Q("6.490833 mm")),
    Sketcher.Constraint("DistanceX", 21, 1, 21, 2, Q("3.257251 mm")),
    Sketcher.Constraint("DistanceY", -1, 1, 43, 3, Q("1182.248799 mm")),
    Sketcher.Constraint("DistanceY", -1, 1, 2, 3, Q("1196.982382 mm")),
    Sketcher.Constraint("DistanceY", -1, 1, 8, 3, Q("1195.391548 mm")),
    Sketcher.Constraint("DistanceX", -1, 1, 65, 3, Q("2313.404761 mm")),
    Sketcher.Constraint("DistanceY", -1, 1, 84, 3, Q("1180.191548 mm")),
    Sketcher.Constraint("DistanceY", -1, 1, 86, 3, Q("1194.191548 mm")),
    Sketcher.Constraint("DistanceY", -1, 1, 3, 2, Q("1190.191548 mm")),
    Sketcher.Constraint("DistanceX", -1, 1, 84, 3, Q("2310.613927 mm")),
    Sketcher.Constraint("DistanceX", -1, 1, 85, 3, Q("2296.613927 mm")),
])
pad1 = body.newObject("PartDesign::Pad", "Pad")
pad1.Profile = sketch1
pad1.Length = 400

doc.recompute()
